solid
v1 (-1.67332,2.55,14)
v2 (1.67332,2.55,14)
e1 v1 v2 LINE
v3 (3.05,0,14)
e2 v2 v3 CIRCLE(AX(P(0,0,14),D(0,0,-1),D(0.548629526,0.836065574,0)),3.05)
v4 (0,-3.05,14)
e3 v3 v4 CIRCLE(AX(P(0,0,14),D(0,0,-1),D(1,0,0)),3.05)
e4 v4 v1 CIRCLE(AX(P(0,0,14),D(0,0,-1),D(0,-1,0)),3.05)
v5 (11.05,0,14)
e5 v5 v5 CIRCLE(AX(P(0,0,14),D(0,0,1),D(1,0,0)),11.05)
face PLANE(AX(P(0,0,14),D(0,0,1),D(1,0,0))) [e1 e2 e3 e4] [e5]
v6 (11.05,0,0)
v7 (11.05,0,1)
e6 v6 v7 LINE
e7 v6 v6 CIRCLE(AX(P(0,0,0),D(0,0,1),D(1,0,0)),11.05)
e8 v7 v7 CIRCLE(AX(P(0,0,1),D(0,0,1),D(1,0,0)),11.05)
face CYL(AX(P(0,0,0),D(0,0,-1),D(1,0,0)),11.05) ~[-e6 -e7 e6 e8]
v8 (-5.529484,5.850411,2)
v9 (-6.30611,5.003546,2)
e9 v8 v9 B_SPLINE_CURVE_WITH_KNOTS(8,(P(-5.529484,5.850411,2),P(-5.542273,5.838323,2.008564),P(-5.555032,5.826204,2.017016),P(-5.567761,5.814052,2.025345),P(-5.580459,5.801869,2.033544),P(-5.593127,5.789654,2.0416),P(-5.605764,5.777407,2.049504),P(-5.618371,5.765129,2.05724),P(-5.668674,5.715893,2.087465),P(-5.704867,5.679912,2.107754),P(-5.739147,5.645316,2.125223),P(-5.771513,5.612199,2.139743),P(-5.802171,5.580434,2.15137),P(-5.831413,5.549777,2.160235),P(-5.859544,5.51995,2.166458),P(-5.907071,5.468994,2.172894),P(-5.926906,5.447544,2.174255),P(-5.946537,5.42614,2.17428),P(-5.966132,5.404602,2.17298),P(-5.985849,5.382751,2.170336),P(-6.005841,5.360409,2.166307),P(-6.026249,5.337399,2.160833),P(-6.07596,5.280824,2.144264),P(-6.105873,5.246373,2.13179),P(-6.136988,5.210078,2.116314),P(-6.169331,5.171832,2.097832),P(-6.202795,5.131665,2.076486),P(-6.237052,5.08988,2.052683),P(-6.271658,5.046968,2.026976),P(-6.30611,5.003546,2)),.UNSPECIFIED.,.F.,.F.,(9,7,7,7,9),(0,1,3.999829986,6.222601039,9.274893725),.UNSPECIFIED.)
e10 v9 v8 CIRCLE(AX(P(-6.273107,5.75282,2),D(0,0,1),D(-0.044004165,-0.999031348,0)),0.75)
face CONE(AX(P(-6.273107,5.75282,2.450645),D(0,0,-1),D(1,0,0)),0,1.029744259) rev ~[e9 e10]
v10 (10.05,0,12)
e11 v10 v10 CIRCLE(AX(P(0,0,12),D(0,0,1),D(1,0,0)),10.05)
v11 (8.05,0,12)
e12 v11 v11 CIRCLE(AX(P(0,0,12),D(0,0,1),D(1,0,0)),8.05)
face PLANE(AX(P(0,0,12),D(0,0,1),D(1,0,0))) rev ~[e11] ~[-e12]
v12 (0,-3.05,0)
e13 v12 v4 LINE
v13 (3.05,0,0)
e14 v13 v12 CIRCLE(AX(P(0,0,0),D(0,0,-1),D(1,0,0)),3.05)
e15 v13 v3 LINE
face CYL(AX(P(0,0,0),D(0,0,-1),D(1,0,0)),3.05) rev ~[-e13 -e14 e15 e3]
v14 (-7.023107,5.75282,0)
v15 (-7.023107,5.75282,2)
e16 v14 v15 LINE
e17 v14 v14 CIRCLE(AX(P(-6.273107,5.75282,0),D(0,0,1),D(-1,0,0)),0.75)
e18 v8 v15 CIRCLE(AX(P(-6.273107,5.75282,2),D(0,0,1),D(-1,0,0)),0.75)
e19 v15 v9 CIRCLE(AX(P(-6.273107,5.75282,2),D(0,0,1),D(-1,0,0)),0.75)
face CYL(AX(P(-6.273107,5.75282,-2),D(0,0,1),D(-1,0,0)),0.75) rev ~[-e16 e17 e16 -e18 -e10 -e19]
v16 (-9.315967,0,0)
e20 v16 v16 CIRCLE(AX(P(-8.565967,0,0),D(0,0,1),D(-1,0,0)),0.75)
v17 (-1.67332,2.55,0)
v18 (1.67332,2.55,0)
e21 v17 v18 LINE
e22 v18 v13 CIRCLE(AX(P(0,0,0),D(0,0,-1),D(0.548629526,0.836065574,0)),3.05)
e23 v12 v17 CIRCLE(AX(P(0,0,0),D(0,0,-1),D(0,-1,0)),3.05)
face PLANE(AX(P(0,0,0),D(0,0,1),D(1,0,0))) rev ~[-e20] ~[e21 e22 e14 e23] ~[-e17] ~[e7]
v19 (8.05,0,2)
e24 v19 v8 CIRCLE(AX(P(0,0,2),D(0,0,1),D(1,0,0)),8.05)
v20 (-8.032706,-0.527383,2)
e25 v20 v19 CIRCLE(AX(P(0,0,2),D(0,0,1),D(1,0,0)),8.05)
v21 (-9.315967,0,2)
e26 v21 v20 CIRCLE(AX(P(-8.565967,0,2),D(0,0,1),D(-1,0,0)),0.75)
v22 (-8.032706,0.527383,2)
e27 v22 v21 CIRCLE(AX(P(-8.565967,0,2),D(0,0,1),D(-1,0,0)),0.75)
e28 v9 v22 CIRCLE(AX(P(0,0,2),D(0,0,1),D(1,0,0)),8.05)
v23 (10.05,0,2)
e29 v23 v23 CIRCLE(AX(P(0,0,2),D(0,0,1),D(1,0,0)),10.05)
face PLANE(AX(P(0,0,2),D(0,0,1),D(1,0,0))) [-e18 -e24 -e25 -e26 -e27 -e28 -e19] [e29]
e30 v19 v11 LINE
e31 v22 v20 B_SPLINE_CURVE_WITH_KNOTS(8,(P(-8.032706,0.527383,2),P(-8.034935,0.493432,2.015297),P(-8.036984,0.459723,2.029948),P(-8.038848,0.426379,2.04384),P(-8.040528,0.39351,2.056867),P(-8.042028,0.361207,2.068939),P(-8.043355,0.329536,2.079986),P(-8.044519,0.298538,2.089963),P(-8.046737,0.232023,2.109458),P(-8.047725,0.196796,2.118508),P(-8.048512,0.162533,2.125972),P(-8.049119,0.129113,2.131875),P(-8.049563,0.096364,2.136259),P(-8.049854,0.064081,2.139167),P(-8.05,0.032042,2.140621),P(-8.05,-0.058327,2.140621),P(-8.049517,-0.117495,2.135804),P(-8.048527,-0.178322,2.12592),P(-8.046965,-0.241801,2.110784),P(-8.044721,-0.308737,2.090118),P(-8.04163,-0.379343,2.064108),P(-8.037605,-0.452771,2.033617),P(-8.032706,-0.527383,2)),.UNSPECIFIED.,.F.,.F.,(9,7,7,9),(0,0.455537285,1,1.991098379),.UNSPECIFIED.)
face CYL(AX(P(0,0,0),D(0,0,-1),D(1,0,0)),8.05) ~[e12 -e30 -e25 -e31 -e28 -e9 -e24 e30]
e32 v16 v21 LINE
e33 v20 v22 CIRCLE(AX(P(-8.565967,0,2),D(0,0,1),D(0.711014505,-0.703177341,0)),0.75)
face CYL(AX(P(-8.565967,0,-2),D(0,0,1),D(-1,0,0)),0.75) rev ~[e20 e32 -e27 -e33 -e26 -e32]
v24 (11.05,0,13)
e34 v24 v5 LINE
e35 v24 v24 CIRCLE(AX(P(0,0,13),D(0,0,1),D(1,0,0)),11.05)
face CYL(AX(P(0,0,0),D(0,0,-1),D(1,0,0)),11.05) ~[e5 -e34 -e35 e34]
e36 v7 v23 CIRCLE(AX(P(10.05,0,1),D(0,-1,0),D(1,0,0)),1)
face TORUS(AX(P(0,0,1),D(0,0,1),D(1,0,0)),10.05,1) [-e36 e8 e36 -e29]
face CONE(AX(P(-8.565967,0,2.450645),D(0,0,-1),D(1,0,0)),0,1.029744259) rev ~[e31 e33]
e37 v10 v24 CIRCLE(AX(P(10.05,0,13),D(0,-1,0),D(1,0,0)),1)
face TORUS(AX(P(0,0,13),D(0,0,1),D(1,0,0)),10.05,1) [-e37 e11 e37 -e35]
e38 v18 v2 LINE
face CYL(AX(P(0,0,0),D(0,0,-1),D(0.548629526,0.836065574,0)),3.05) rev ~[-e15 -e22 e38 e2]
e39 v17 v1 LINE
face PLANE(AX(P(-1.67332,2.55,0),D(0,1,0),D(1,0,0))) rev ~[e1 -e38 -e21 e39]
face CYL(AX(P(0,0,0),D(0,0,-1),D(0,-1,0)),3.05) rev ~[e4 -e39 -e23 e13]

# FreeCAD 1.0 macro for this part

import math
import FreeCAD as App
import Part
import Sketcher

V = App.Vector


def edges_at(feature, points):
    """Names of the edges that pass closest to the given points."""
    edges = feature.Shape.Edges
    near = lambda p: min(range(len(edges)), key=lambda i: edges[i].distToShape(Part.Vertex(*p))[0])
    return sorted({f"Edge{near(p) + 1}" for p in points})

doc = App.newDocument("Part")
params = doc.addObject("Spreadsheet::Sheet", "Params")
for row, (alias, value) in enumerate([
    ("sketch1_diameter", "16.1 mm"),
    ("sketch1_radius", "3.05 mm"),
    ("pad1_length", "14 mm"),
    ("sketch2_diameter", "22.1 mm"),
    ("sketch2_diameter2", "16.1 mm"),
    ("pad2_length", "14 mm"),
    ("sketch3_diameter", "22.1 mm"),
    ("sketch3_diameter2", "16.1 mm"),
    ("pocket1_length", "12 mm"),
    ("sketch4_diameter", "22.1 mm"),
    ("sketch4_diameter2", "16.1 mm"),
    ("pad3_length", "2 mm"),
    ("fillet_radius", "1 mm"),
    ("sketch5_diameter", "1.5 mm"),
    ("hole_diameter", "1.5 mm"),
    ("hole_depth", "2 mm"),
    ("sketch6_diameter", "1.5 mm"),
    ("hole2_diameter", "1.5 mm"),
    ("hole2_depth", "2 mm"),
], start=1):
    params.set(f"A{row}", alias)
    params.set(f"B{row}", "=" + value)
    params.setAlias(f"B{row}", alias)

body = doc.addObject("PartDesign::Body", "Body")

sketch1 = doc.addObject("Sketcher::SketchObject", "Sketch")
body.addObject(sketch1)
sketch1.AttachmentSupport = (doc.XY_Plane, [""])
sketch1.MapMode = "FlatFace"
sketch1.addGeometry([
    Part.Circle(V(0, 0, 0), V(0, 0, 1), 8.1),
    Part.ArcOfCircle(Part.Circle(V(0, 0, 0), V(0, 0, 1), 3), math.radians(123), math.radians(270)),
    Part.LineSegment(V(-1.7, 2.5, 0), V(1.7, 2.5, 0)),
    Part.ArcOfCircle(Part.Circle(V(0, 0, 0), V(0, 0, 1), 3), math.radians(0), math.radians(57)),
    Part.ArcOfCircle(Part.Circle(V(0, 0, 0), V(0, 0, 1), 3), math.radians(-90), math.radians(0)),
], False)
sketch1.addConstraint([
    Sketcher.Constraint("Coincident", 1, 1, 2, 1),
    Sketcher.Constraint("Coincident", 2, 2, 3, 2),
    Sketcher.Constraint("Tangent", 3, 1, 4, 2),
    Sketcher.Constraint("Tangent", 4, 1, 1, 2),
    Sketcher.Constraint("Horizontal", 2),
    Sketcher.Constraint("Coincident", 0, 3, -1, 1),
    Sketcher.Constraint("Coincident", 1, 3, -1, 1),
    Sketcher.Constraint("Coincident", 3, 3, -1, 1),
    Sketcher.Constraint("PointOnObject", 3, 1, -1),
    Sketcher.Constraint("PointOnObject", 4, 1, -2),
    Sketcher.Constraint("Diameter", 0, 16.1),
    Sketcher.Constraint("Radius", 1, 3.05),
    Sketcher.Constraint("DistanceY", -1, 1, 1, 1, 2.55),
])
sketch1.setExpression("Constraints[10]", "Params.sketch1_diameter")
sketch1.setExpression("Constraints[11]", "Params.sketch1_radius")
pad1 = doc.addObject("PartDesign::Pad", "Pad")
body.addObject(pad1)
pad1.Profile = sketch1
pad1.setExpression("Length", "Params.pad1_length")

sketch2 = doc.addObject("Sketcher::SketchObject", "Sketch001")
body.addObject(sketch2)
sketch2.AttachmentSupport = (doc.XY_Plane, [""])
sketch2.MapMode = "FlatFace"
sketch2.addGeometry([
    Part.Circle(V(0, 0, 0), V(0, 0, 1), 11),
    Part.Circle(V(0, 0, 0), V(0, 0, 1), 8),
], False)
sketch2.addConstraint([
    Sketcher.Constraint("Coincident", 0, 3, -1, 1),
    Sketcher.Constraint("Coincident", 1, 3, -1, 1),
    Sketcher.Constraint("Diameter", 0, 22.1),
    Sketcher.Constraint("Diameter", 1, 16.1),
])
sketch2.setExpression("Constraints[2]", "Params.sketch2_diameter")
sketch2.setExpression("Constraints[3]", "Params.sketch2_diameter2")
pad2 = doc.addObject("PartDesign::Pad", "Pad001")
body.addObject(pad2)
pad2.Profile = sketch2
pad2.setExpression("Length", "Params.pad2_length")

sketch3 = doc.addObject("Sketcher::SketchObject", "Sketch002")
body.addObject(sketch3)
sketch3.AttachmentSupport = (doc.XY_Plane, [""])
sketch3.MapMode = "FlatFace"
sketch3.addGeometry([
    Part.Circle(V(0, 0, 0), V(0, 0, 1), 11),
    Part.Circle(V(0, 0, 0), V(0, 0, 1), 8),
], False)
sketch3.addConstraint([
    Sketcher.Constraint("Coincident", 0, 3, -1, 1),
    Sketcher.Constraint("Coincident", 1, 3, -1, 1),
    Sketcher.Constraint("Diameter", 0, 22.1),
    Sketcher.Constraint("Diameter", 1, 16.1),
])
sketch3.setExpression("Constraints[2]", "Params.sketch3_diameter")
sketch3.setExpression("Constraints[3]", "Params.sketch3_diameter2")
pocket1 = doc.addObject("PartDesign::Pocket", "Pocket")
body.addObject(pocket1)
pocket1.Profile = sketch3
pocket1.setExpression("Length", "Params.pocket1_length")
pocket1.Reversed = True

sketch4 = doc.addObject("Sketcher::SketchObject", "Sketch003")
body.addObject(sketch4)
sketch4.AttachmentSupport = (doc.XY_Plane, [""])
sketch4.MapMode = "FlatFace"
sketch4.addGeometry([
    Part.Circle(V(0, 0, 0), V(0, 0, 1), 11),
    Part.Circle(V(0, 0, 0), V(0, 0, 1), 8),
], False)
sketch4.addConstraint([
    Sketcher.Constraint("Coincident", 0, 3, -1, 1),
    Sketcher.Constraint("Coincident", 1, 3, -1, 1),
    Sketcher.Constraint("Diameter", 0, 22.1),
    Sketcher.Constraint("Diameter", 1, 16.1),
])
sketch4.setExpression("Constraints[2]", "Params.sketch4_diameter")
sketch4.setExpression("Constraints[3]", "Params.sketch4_diameter2")
pad3 = doc.addObject("PartDesign::Pad", "Pad002")
body.addObject(pad3)
pad3.Profile = sketch4
pad3.setExpression("Length", "Params.pad3_length")
doc.recompute()

fillet = doc.addObject("PartDesign::Fillet", "Fillet")
body.addObject(fillet)
fillet.Base = (pad3, edges_at(pad3, [(-11.05, 0, 12), (-11.05, 0, 2)]))
fillet.setExpression("Radius", "Params.fillet_radius")

sketch5 = doc.addObject("Sketcher::SketchObject", "Sketch004")
body.addObject(sketch5)
sketch5.AttachmentSupport = (doc.XY_Plane, [""])
sketch5.MapMode = "FlatFace"
sketch5.addGeometry(Part.Circle(V(-8.6, 0, 0), V(0, 0, 1), 0.8), False)
sketch5.addConstraint([
    Sketcher.Constraint("PointOnObject", 0, 3, -1),
    Sketcher.Constraint("Diameter", 0, 1.5),
    Sketcher.Constraint("DistanceX", 0, 3, -1, 1, 8.565967),
])
sketch5.setExpression("Constraints[1]", "Params.sketch5_diameter")
doc.recompute()
hole = doc.addObject("PartDesign::Hole", "Hole")
body.addObject(hole)
hole.Profile = sketch5
hole.ThreadType = "None"
hole.setExpression("Diameter", "Params.hole_diameter")
hole.DepthType = "Dimension"
hole.setExpression("Depth", "Params.hole_depth")
hole.DrillPoint = "Angled"
hole.DrillPointAngle = 118
hole.Reversed = True

sketch6 = doc.addObject("Sketcher::SketchObject", "Sketch005")
body.addObject(sketch6)
sketch6.AttachmentSupport = (doc.XY_Plane, [""])
sketch6.MapMode = "FlatFace"
sketch6.addGeometry(Part.Circle(V(-6.3, 5.8, 0), V(0, 0, 1), 0.8), False)
sketch6.addConstraint([
    Sketcher.Constraint("Diameter", 0, 1.5),
    Sketcher.Constraint("DistanceY", -1, 1, 0, 3, 5.75282),
    Sketcher.Constraint("DistanceX", 0, 3, -1, 1, 6.273107),
])
sketch6.setExpression("Constraints[0]", "Params.sketch6_diameter")
doc.recompute()
hole2 = doc.addObject("PartDesign::Hole", "Hole001")
body.addObject(hole2)
hole2.Profile = sketch6
hole2.ThreadType = "None"
hole2.setExpression("Diameter", "Params.hole2_diameter")
hole2.DepthType = "Dimension"
hole2.setExpression("Depth", "Params.hole2_depth")
hole2.DrillPoint = "Angled"
hole2.DrillPointAngle = 118
hole2.Reversed = True

doc.recompute()
